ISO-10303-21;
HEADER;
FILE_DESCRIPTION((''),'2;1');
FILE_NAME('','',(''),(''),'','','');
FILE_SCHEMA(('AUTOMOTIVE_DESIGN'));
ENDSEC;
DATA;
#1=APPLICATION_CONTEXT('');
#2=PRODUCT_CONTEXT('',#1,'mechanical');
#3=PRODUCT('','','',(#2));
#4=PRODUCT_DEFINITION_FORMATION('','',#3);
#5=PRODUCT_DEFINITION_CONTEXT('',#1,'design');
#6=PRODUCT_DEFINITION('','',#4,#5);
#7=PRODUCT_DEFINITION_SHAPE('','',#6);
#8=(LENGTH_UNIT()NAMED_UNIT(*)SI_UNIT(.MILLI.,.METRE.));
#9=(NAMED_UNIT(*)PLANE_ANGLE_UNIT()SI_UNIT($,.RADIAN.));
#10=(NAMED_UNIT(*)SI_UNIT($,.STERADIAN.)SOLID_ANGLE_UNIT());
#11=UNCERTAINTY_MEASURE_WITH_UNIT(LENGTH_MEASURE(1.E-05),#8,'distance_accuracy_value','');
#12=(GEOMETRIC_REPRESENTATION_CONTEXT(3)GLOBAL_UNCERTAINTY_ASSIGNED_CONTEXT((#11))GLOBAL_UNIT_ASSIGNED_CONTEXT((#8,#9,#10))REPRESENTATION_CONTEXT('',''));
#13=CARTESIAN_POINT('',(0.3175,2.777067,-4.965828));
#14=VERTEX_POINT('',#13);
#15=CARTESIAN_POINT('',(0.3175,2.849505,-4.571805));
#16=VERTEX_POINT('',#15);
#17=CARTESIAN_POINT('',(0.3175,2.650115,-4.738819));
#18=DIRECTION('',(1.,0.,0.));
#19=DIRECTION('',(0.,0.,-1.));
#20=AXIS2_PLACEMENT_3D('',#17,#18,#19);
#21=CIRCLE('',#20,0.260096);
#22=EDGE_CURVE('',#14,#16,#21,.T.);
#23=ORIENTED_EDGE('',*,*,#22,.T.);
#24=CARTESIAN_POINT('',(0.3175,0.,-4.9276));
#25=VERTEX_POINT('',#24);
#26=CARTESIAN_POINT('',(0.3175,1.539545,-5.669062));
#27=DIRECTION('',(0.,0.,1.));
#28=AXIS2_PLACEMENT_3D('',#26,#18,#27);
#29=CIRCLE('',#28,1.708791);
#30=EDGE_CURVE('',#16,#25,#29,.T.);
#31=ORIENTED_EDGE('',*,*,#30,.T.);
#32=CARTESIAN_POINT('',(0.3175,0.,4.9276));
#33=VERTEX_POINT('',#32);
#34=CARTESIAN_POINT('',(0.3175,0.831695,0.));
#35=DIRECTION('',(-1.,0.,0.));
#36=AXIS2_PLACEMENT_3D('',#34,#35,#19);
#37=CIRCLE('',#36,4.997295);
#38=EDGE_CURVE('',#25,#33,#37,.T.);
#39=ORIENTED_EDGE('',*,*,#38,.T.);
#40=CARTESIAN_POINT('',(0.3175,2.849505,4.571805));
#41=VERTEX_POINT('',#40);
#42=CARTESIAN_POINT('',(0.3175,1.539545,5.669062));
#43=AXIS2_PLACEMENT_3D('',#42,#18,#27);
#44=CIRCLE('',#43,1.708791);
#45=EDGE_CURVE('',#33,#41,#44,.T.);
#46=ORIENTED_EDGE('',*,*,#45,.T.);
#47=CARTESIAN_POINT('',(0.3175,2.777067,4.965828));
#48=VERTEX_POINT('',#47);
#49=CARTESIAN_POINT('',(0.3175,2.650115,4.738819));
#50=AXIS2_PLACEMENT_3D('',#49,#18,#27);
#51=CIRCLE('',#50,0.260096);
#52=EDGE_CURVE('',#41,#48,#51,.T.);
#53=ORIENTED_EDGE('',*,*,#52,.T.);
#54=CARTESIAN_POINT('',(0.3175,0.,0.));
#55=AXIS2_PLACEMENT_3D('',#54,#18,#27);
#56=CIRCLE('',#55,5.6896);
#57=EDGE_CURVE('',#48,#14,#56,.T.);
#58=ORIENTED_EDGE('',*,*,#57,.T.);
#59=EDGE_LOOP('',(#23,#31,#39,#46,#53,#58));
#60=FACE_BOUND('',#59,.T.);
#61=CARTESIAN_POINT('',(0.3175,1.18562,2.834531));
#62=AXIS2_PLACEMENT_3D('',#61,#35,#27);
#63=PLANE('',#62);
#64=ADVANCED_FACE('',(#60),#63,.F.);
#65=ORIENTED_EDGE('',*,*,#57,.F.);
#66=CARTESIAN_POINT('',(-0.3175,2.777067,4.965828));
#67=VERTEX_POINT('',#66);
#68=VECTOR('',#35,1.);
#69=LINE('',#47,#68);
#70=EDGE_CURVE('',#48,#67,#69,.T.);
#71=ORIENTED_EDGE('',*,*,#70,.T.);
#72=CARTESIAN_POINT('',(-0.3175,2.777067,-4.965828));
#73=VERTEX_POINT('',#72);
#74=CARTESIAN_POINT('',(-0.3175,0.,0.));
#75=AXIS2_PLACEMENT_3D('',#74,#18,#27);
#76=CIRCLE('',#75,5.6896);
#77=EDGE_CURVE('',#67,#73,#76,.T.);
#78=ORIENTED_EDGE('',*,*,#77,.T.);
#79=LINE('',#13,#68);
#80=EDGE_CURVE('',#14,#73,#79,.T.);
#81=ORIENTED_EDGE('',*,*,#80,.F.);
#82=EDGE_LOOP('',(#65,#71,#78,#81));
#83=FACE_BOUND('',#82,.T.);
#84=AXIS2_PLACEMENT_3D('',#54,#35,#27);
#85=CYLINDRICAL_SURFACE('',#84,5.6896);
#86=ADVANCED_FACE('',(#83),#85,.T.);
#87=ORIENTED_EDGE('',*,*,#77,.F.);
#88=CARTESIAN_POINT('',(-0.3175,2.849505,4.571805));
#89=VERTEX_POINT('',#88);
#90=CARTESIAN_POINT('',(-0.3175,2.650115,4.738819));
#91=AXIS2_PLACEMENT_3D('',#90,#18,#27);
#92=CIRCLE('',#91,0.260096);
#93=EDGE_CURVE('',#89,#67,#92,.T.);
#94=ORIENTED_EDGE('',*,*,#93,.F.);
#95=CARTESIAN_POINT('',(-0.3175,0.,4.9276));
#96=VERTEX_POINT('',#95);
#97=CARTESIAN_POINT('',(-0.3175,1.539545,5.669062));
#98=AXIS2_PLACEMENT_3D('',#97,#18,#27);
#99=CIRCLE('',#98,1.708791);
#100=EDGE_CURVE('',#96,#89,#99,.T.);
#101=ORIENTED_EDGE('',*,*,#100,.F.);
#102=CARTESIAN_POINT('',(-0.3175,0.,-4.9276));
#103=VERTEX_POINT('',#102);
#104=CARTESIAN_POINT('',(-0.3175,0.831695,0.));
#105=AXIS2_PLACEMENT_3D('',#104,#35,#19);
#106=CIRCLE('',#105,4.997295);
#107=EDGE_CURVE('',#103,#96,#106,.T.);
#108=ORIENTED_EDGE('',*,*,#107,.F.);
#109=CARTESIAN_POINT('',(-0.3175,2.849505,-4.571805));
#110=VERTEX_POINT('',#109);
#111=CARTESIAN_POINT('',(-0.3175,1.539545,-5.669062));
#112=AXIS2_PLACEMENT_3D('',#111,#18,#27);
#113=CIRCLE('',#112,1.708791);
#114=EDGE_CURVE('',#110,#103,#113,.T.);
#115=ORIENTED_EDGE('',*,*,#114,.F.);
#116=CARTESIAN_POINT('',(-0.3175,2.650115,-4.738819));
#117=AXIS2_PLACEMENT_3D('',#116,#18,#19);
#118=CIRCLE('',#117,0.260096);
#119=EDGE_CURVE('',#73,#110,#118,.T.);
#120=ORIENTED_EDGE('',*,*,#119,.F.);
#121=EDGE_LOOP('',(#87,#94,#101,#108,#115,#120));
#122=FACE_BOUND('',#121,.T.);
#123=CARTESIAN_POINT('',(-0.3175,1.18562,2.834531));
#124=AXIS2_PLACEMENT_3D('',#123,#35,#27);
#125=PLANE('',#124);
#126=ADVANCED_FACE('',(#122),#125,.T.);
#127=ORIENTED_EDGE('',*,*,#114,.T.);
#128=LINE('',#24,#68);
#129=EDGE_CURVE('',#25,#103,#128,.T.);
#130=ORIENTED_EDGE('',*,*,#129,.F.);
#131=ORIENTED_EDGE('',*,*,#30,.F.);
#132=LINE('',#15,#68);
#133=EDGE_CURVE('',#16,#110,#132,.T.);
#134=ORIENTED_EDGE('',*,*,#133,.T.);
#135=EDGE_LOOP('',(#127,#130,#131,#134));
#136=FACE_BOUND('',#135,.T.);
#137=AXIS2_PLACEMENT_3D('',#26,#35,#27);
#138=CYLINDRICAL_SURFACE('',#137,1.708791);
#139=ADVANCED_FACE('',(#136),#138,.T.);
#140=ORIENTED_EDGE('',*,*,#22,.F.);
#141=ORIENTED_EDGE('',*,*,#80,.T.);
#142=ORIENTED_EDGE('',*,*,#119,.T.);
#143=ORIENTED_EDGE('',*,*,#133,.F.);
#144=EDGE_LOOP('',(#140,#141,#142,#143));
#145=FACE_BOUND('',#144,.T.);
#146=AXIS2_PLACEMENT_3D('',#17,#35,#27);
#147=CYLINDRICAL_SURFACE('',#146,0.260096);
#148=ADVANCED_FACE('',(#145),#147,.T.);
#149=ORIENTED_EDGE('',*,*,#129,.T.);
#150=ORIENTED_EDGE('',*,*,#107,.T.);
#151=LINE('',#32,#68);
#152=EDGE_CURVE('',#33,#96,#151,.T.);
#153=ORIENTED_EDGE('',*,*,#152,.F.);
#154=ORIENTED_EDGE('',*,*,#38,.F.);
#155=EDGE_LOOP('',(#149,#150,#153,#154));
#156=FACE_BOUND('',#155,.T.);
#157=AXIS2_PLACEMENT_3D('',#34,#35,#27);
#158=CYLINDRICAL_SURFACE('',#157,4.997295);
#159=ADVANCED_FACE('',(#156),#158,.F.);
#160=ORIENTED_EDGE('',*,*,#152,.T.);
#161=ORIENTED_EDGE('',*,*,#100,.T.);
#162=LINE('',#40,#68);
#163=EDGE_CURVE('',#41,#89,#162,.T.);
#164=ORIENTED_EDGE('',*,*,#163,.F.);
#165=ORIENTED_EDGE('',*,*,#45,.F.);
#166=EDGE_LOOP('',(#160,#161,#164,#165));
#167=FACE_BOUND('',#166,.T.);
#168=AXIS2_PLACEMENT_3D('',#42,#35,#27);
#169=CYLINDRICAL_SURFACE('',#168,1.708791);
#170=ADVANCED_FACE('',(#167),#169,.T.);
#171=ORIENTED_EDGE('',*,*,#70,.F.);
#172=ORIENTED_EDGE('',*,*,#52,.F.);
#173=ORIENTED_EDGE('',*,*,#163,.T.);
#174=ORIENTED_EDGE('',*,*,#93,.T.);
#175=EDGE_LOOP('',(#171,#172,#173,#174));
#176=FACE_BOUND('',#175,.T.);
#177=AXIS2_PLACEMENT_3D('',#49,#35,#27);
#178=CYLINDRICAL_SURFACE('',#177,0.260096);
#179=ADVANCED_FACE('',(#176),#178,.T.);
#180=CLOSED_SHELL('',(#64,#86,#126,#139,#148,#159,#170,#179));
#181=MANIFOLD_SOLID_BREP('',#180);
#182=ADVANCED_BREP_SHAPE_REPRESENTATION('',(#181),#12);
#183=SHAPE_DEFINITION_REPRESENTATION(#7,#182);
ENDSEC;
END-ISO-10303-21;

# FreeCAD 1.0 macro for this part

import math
import FreeCAD as App
import Part
import Sketcher

V = App.Vector
Q = App.Units.Quantity

doc = App.newDocument("Part")
params = doc.addObject("Spreadsheet::Sheet", "Params")
for row, (alias, value) in enumerate([
    ("sketch1_radius", "0.224 in"),
    ("pad1_length", "0.025 in"),
], start=1):
    params.set(f"A{row}", alias)
    params.set(f"B{row}", "=" + value)
    params.setAlias(f"B{row}", alias)

body = doc.addObject("PartDesign::Body", "Body")

# Sketch on YZ plane
sketch1 = body.newObject("Sketcher::SketchObject", "Sketch")
sketch1.AttachmentSupport = (doc.getObject("YZ_Plane"), [""])
sketch1.MapMode = "FlatFace"
sketch1.addGeometry([
    Part.ArcOfCircle(Part.Circle(V(0.831695, 0, 0), V(0, 0, 1), 4.997295), math.radians(99.580261), math.radians(260.419739)),  # 0
    Part.ArcOfCircle(Part.Circle(V(1.539545, 5.669062, 0), V(0, 0, 1), 1.708791), math.radians(-154.284009), math.radians(-39.950448)),  # 1
    Part.ArcOfCircle(Part.Circle(V(2.650115, 4.738819, 0), V(0, 0, 1), 0.260096), math.radians(-39.950448), math.radians(60.784536)),  # 2
    Part.ArcOfCircle(Part.Circle(V(0, 0, 0), V(0, 0, 1), 5.6896), math.radians(60.784536), math.radians(299.215464)),  # 3
    Part.ArcOfCircle(Part.Circle(V(2.650115, -4.738819, 0), V(0, 0, 1), 0.260096), math.radians(-60.784536), math.radians(39.950448)),  # 4
    Part.ArcOfCircle(Part.Circle(V(1.539545, -5.669062, 0), V(0, 0, 1), 1.708791), math.radians(39.950448), math.radians(154.284009)),  # 5
], False)
sketch1.addConstraint([
    Sketcher.Constraint("Coincident", 0, 1, 1, 1),
    Sketcher.Constraint("Tangent", 1, 2, 2, 1),
    Sketcher.Constraint("Tangent", 2, 2, 3, 1),
    Sketcher.Constraint("Tangent", 3, 2, 4, 1),
    Sketcher.Constraint("Tangent", 4, 2, 5, 1),
    Sketcher.Constraint("Coincident", 5, 2, 0, 2),
    Sketcher.Constraint("Coincident", 3, 3, -1, 1),
    Sketcher.Constraint("Equal", 2, 4),
    Sketcher.Constraint("Equal", 1, 5),
    Sketcher.Constraint("Symmetric", 0, 1, 5, 2, -1, 1),
    Sketcher.Constraint("Symmetric", 1, 3, 5, 3, -1),
    Sketcher.Constraint("Radius", 3, Q("0.224 in")),
    Sketcher.Constraint("DistanceY", -1, 1, 0, 1, Q("0.194 in")),
    Sketcher.Constraint("Radius", 1, Q("1.708791 mm")),
    Sketcher.Constraint("Radius", 0, Q("4.997295 mm")),
    Sketcher.Constraint("Radius", 2, Q("0.260096 mm")),
    Sketcher.Constraint("DistanceY", -1, 1, 2, 3, Q("4.738819 mm")),
])
sketch1.setExpression("Constraints[11]", "Params.sketch1_radius")
pad1 = body.newObject("PartDesign::Pad", "Pad")
pad1.Profile = sketch1
pad1.setExpression("Length", "Params.pad1_length")
pad1.Midplane = True

doc.recompute()
